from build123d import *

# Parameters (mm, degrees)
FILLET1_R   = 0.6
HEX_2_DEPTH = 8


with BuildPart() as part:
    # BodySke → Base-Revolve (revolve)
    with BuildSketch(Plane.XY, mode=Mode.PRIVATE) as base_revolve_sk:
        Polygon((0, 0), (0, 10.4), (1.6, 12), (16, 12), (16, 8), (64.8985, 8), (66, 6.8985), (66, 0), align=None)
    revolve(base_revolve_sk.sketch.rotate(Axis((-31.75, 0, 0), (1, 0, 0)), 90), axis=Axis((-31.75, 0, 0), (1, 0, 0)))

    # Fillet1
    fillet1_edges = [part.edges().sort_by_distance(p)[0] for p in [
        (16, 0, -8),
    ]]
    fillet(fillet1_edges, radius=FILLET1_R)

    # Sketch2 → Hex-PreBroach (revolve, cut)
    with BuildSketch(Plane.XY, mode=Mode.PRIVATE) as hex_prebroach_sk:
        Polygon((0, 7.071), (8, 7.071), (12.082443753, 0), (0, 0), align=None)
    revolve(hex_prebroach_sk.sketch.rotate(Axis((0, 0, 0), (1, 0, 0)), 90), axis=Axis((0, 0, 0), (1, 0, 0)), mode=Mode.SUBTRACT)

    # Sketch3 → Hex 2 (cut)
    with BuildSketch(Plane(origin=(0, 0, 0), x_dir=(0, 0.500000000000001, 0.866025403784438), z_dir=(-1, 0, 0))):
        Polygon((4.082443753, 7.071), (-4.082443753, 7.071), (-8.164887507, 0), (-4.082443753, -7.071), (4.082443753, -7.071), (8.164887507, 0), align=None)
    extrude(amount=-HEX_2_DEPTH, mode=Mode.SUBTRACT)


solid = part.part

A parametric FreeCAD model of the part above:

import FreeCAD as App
import Part
import Sketcher
Q = App.Units.Quantity


def edges_at(feature, points):
    """Names of the edges that pass closest to the given points."""
    edges = feature.Shape.Edges
    near = lambda p: min(range(len(edges)), key=lambda i: edges[i].distToShape(Part.Vertex(*p))[0])
    return sorted({f"Edge{near(p) + 1}" for p in points})

doc = App.newDocument("Part")
body = doc.addObject("PartDesign::Body", "Body")

# Sketch on XY plane
sketch1 = body.newObject("Sketcher::SketchObject", "Sketch")
sketch1.AttachmentSupport = (doc.getObject("XY_Plane"), [""])
sketch1.MapMode = "FlatFace"
sketch1.addGeometry([
    Part.LineSegment(App.Vector(0, 10.4, 0), App.Vector(0, 0, 0)),  # 0
    Part.LineSegment(App.Vector(0, 0, 0), App.Vector(66, 0, 0)),  # 1
    Part.LineSegment(App.Vector(66, 0, 0), App.Vector(66, 6.9, 0)),  # 2
    Part.LineSegment(App.Vector(66, 6.9, 0), App.Vector(64.9, 8, 0)),  # 3
    Part.LineSegment(App.Vector(64.9, 8, 0), App.Vector(16, 8, 0)),  # 4
    Part.LineSegment(App.Vector(16, 8, 0), App.Vector(16, 12, 0)),  # 5
    Part.LineSegment(App.Vector(16, 12, 0), App.Vector(1.6, 12, 0)),  # 6
    Part.LineSegment(App.Vector(1.6, 12, 0), App.Vector(0, 10.4, 0)),  # 7
], False)
sketch1.addConstraint([
    Sketcher.Constraint("Coincident", 0, 2, 1, 1),
    Sketcher.Constraint("Coincident", 1, 2, 2, 1),
    Sketcher.Constraint("Coincident", 2, 2, 3, 1),
    Sketcher.Constraint("Coincident", 3, 2, 4, 1),
    Sketcher.Constraint("Coincident", 4, 2, 5, 1),
    Sketcher.Constraint("Coincident", 5, 2, 6, 1),
    Sketcher.Constraint("Coincident", 6, 2, 7, 1),
    Sketcher.Constraint("Coincident", 7, 2, 0, 1),
    Sketcher.Constraint("Vertical", 0),
    Sketcher.Constraint("Horizontal", 1),
    Sketcher.Constraint("Vertical", 2),
    Sketcher.Constraint("Horizontal", 4),
    Sketcher.Constraint("Vertical", 5),
    Sketcher.Constraint("Horizontal", 6),
    Sketcher.Constraint("Coincident", 0, 2, -1, 1),
    Sketcher.Constraint("Perpendicular", 3, 7),
    Sketcher.Constraint("DistanceX", 1, 1, 1, 2, Q("66 mm")),
    Sketcher.Constraint("DistanceY", 5, 1, 5, 2, Q("4 mm")),
    Sketcher.Constraint("Angle", 3, Q("135 deg")),
    Sketcher.Constraint("DistanceX", 6, 2, 6, 1, Q("14.4 mm")),
    Sketcher.Constraint("DistanceY", 0, 2, 0, 1, Q("10.4 mm")),
    Sketcher.Constraint("DistanceY", -1, 1, 3, 2, Q("8 mm")),
    Sketcher.Constraint("DistanceX", 4, 2, 4, 1, Q("48.8985 mm")),
])
revolution = body.newObject("PartDesign::Revolution", "Revolution")
revolution.Profile = sketch1
revolution.ReferenceAxis = (sketch1, ["H_Axis"])
revolution.Angle = 360
doc.recompute()

fillet = body.newObject("PartDesign::Fillet", "Fillet")
fillet.Base = (revolution, edges_at(revolution, [(16, 0, -8)]))
fillet.Radius = 0.6

# Sketch on XY plane
sketch2 = body.newObject("Sketcher::SketchObject", "Sketch001")
sketch2.AttachmentSupport = (doc.getObject("XY_Plane"), [""])
sketch2.MapMode = "FlatFace"
sketch2.addGeometry([
    Part.LineSegment(App.Vector(8, 7, 0), App.Vector(0, 7, 0)),
    Part.LineSegment(App.Vector(0, 7, 0), App.Vector(0, 0, 0)),
    Part.LineSegment(App.Vector(0, 0, 0), App.Vector(12, 0, 0)),
    Part.LineSegment(App.Vector(12, 0, 0), App.Vector(8, 7, 0)),
], False)
sketch2.addConstraint([
    Sketcher.Constraint("Coincident", 0, 2, 1, 1),
    Sketcher.Constraint("Coincident", 1, 2, 2, 1),
    Sketcher.Constraint("Coincident", 2, 2, 3, 1),
    Sketcher.Constraint("Coincident", 3, 2, 0, 1),
    Sketcher.Constraint("Horizontal", 0),
    Sketcher.Constraint("Vertical", 1),
    Sketcher.Constraint("Horizontal", 2),
    Sketcher.Constraint("Coincident", 1, 2, -1, 1),
    Sketcher.Constraint("DistanceX", 0, 2, 0, 1, Q("8 mm")),
    Sketcher.Constraint("Angle", 3, Q("120 deg")),
    Sketcher.Constraint("DistanceY", 1, 2, 1, 1, Q("7.071 mm")),
])
groove = body.newObject("PartDesign::Groove", "Groove")
groove.Profile = sketch2
groove.ReferenceAxis = (sketch2, ["H_Axis"])
groove.Angle = 360

# Sketch on YZ plane
sketch3 = body.newObject("Sketcher::SketchObject", "Sketch002")
sketch3.AttachmentSupport = (doc.getObject("YZ_Plane"), [""])
sketch3.MapMode = "FlatFace"
sketch3.addGeometry([
    Part.LineSegment(App.Vector(8, 0, 0), App.Vector(4, -7, 0)),  # 0
    Part.LineSegment(App.Vector(4, -7, 0), App.Vector(-4, -7, 0)),  # 1
    Part.LineSegment(App.Vector(-4, -7, 0), App.Vector(-8, 0, 0)),  # 2
    Part.LineSegment(App.Vector(-8, 0, 0), App.Vector(-4, 7, 0)),  # 3
    Part.LineSegment(App.Vector(-4, 7, 0), App.Vector(4, 7, 0)),  # 4
    Part.LineSegment(App.Vector(4, 7, 0), App.Vector(8, 0, 0)),  # 5
], False)
sketch3.addConstraint([
    Sketcher.Constraint("Coincident", 0, 2, 1, 1),
    Sketcher.Constraint("Coincident", 1, 2, 2, 1),
    Sketcher.Constraint("Coincident", 2, 2, 3, 1),
    Sketcher.Constraint("Coincident", 3, 2, 4, 1),
    Sketcher.Constraint("Coincident", 4, 2, 5, 1),
    Sketcher.Constraint("Coincident", 5, 2, 0, 1),
    Sketcher.Constraint("Horizontal", 1),
    Sketcher.Constraint("Horizontal", 4),
    Sketcher.Constraint("Symmetric", 0, 2, 3, 2, -1, 1),
    Sketcher.Constraint("Symmetric", 2, 2, 5, 2, -1, 1),
    Sketcher.Constraint("PointOnObject", 2, 2, -1),
    Sketcher.Constraint("Parallel", 2, 5),
    Sketcher.Constraint("Vertical", 1, 2, 3, 2),
    Sketcher.Constraint("Angle", 0, Q("-120 deg")),
    Sketcher.Constraint("DistanceY", 0, 2, -1, 1, Q("7.071 mm")),
    Sketcher.Constraint("DistanceX", 1, 2, 1, 1, Q("8.164888 mm")),
])
pocket1 = body.newObject("PartDesign::Pocket", "Pocket")
pocket1.Profile = sketch3
pocket1.Length = 8
pocket1.Reversed = True

doc.recompute()
